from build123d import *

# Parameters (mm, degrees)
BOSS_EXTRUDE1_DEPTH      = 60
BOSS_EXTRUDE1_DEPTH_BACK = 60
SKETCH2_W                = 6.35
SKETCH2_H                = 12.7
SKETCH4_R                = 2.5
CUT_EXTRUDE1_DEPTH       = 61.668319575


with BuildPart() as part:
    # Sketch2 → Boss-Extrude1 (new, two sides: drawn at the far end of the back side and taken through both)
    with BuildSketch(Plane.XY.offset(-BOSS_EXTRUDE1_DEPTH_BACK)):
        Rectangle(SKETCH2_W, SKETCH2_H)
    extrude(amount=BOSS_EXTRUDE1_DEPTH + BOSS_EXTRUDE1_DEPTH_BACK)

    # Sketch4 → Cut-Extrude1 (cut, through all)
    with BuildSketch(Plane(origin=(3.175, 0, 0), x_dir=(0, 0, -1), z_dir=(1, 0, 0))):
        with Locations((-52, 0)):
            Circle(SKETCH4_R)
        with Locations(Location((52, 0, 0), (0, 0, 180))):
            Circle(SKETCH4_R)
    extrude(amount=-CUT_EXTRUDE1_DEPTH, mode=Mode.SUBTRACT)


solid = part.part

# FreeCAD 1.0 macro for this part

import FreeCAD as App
import Part
import Sketcher
from FreeCAD import Vector
Q = App.Units.Quantity


def add_polygon(sketch, points):
    """Adds a closed chain of lines whose ends are joined by coincident constraints."""
    first, n = sketch.GeometryCount, len(points)
    for a, b in zip(points, points[1:] + points[:1]):
        sketch.addGeometry(Part.LineSegment(App.Vector(*a, 0), App.Vector(*b, 0)), False)
    for i in range(n):
        sketch.addConstraint(Sketcher.Constraint("Coincident", first + i, 2, first + (i + 1) % n, 1))

doc = App.newDocument("Part")
params = doc.addObject("Spreadsheet::Sheet", "Params")
for row, (alias, value) in enumerate([
    ("sketch1_height", "12.7 mm"),
    ("sketch1_width", "6.35 mm"),
    ("pad1_length", "60 mm"),
    ("pad1_length2", "60 mm"),
    ("sketch2_diameter", "5 mm"),
], start=1):
    params.set(f"A{row}", alias)
    params.set(f"B{row}", "=" + value)
    params.setAlias(f"B{row}", alias)

body = doc.addObject("PartDesign::Body", "Body")

# Sketch on XY plane
sketch1 = body.newObject("Sketcher::SketchObject", "Sketch")
sketch1.AttachmentSupport = (doc.getObject("XY_Plane"), [""])
sketch1.MapMode = "FlatFace"
add_polygon(sketch1, [(-3.175, 6.35), (-3.175, -6.35), (3.175, -6.35), (3.175, 6.35)])  # lines 0-3
sketch1.addConstraint([
    Sketcher.Constraint("Vertical", 0),
    Sketcher.Constraint("Horizontal", 1),
    Sketcher.Constraint("Vertical", 2),
    Sketcher.Constraint("Horizontal", 3),
    Sketcher.Constraint("Symmetric", 0, 2, 2, 2, -1, 1),
    Sketcher.Constraint("DistanceY", 0, 2, 0, 1, Q("12.7 mm")),
    Sketcher.Constraint("DistanceX", 1, 1, 1, 2, Q("6.35 mm")),
])
sketch1.setExpression("Constraints[9]", "Params.sketch1_height")
sketch1.setExpression("Constraints[10]", "Params.sketch1_width")
pad1 = body.newObject("PartDesign::Pad", "Pad")
pad1.Profile = sketch1
pad1.Type = "TwoLengths"
pad1.setExpression("Length", "Params.pad1_length")
pad1.setExpression("Length2", "Params.pad1_length2")

# Sketch on YZ plane
sketch2 = body.newObject("Sketcher::SketchObject", "Sketch001")
sketch2.AttachmentSupport = (doc.getObject("YZ_Plane"), [""])
sketch2.MapMode = "FlatFace"
sketch2.AttachmentOffset = App.Placement(Vector(0, 0, 3.175), App.Rotation())
sketch2.addGeometry([
    Part.Circle(Vector(0, 52, 0), Vector(0, 0, 1), 2.5),
    Part.Circle(Vector(0, -52, 0), Vector(0, 0, 1), 2.5),
], False)
sketch2.addConstraint([
    Sketcher.Constraint("Equal", 0, 1),
    Sketcher.Constraint("Symmetric", 0, 3, 1, 3, -1, 1),
    Sketcher.Constraint("PointOnObject", 0, 3, -2),
    Sketcher.Constraint("Diameter", 0, Q("5 mm")),
    Sketcher.Constraint("DistanceY", -1, 1, 0, 3, Q("52 mm")),
])
sketch2.setExpression("Constraints[3]", "Params.sketch2_diameter")
pocket1 = body.newObject("PartDesign::Pocket", "Pocket")
pocket1.Profile = sketch2
pocket1.Type = "ThroughAll"

doc.recompute()
